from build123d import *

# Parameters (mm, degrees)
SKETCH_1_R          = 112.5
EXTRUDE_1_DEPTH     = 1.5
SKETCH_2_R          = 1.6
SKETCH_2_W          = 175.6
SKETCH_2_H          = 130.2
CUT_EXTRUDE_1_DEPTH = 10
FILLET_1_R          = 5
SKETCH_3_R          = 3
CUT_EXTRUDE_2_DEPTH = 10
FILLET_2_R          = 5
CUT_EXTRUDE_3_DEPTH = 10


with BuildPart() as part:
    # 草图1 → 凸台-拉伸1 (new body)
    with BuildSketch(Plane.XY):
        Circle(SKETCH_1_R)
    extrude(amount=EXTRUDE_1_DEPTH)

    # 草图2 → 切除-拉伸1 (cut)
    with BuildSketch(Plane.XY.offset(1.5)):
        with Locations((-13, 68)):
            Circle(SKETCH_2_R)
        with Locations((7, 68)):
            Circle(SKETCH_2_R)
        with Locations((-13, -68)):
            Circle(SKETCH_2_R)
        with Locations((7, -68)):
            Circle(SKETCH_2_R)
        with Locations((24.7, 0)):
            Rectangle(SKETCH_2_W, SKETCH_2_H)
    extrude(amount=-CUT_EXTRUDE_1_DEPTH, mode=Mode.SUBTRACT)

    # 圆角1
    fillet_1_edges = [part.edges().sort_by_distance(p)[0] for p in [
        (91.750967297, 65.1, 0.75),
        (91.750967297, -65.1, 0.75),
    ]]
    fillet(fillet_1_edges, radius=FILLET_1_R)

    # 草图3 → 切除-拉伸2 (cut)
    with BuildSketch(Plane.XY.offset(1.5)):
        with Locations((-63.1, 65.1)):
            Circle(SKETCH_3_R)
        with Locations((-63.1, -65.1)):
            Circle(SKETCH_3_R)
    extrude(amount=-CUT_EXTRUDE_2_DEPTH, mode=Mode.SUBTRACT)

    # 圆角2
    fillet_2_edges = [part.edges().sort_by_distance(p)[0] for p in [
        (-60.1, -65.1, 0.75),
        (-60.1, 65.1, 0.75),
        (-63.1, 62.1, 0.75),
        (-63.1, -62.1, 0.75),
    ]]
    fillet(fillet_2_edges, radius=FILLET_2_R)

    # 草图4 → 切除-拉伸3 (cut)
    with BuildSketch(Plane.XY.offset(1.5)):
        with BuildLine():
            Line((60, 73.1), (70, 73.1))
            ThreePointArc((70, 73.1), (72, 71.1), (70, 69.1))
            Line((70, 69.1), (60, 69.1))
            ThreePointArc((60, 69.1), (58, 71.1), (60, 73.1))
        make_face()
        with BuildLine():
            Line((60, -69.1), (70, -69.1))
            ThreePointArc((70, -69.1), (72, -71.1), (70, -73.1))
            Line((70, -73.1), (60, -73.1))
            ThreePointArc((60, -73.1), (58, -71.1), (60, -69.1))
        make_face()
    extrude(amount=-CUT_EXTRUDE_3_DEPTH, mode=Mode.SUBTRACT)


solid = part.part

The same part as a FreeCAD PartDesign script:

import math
import FreeCAD as App
import Part
import Sketcher
from FreeCAD import Vector
Q = App.Units.Quantity


def edges_at(feature, points):
    """Names of the edges that pass closest to the given points."""
    edges = feature.Shape.Edges
    near = lambda p: min(range(len(edges)), key=lambda i: edges[i].distToShape(Part.Vertex(*p))[0])
    return sorted({f"Edge{near(p) + 1}" for p in points})


def add_polygon(sketch, points):
    """Adds a closed chain of lines whose ends are joined by coincident constraints."""
    first, n = sketch.GeometryCount, len(points)
    for a, b in zip(points, points[1:] + points[:1]):
        sketch.addGeometry(Part.LineSegment(App.Vector(*a, 0), App.Vector(*b, 0)), False)
    for i in range(n):
        sketch.addConstraint(Sketcher.Constraint("Coincident", first + i, 2, first + (i + 1) % n, 1))

doc = App.newDocument("Part")
body = doc.addObject("PartDesign::Body", "Body")

# Sketch on XY plane
sketch1 = body.newObject("Sketcher::SketchObject", "Sketch")
sketch1.AttachmentSupport = (doc.getObject("XY_Plane"), [""])
sketch1.MapMode = "FlatFace"
sketch1.addGeometry(Part.Circle(Vector(0, 0, 0), Vector(0, 0, 1), 112.5), False)
sketch1.addConstraint(Sketcher.Constraint("Coincident", 0, 3, -1, 1))
sketch1.addConstraint(Sketcher.Constraint("Diameter", 0, Q("225 mm")))
pad1 = body.newObject("PartDesign::Pad", "Pad")
pad1.Profile = sketch1
pad1.Length = 1.5

# Sketch on XY plane
sketch2 = body.newObject("Sketcher::SketchObject", "Sketch001")
sketch2.AttachmentSupport = (doc.getObject("XY_Plane"), [""])
sketch2.MapMode = "FlatFace"
sketch2.AttachmentOffset = App.Placement(Vector(0, 0, 1.5), App.Rotation())
sketch2.addGeometry(Part.Circle(Vector(-13, 68, 0), Vector(0, 0, 1), 1.6), False)  # 0
sketch2.addGeometry(Part.Circle(Vector(7, 68, 0), Vector(0, 0, 1), 1.6), False)  # 1
sketch2.addGeometry(Part.Circle(Vector(-13, -68, 0), Vector(0, 0, 1), 1.6), False)  # 2
sketch2.addGeometry(Part.Circle(Vector(7, -68, 0), Vector(0, 0, 1), 1.6), False)  # 3
add_polygon(sketch2, [(-63.1, 65.1), (-63.1, -65.1), (112.5, -65.1), (112.5, 65.1)])  # lines 4-7
sketch2.addConstraint(Sketcher.Constraint("Vertical", 4))
sketch2.addConstraint(Sketcher.Constraint("Horizontal", 5))
sketch2.addConstraint(Sketcher.Constraint("Vertical", 6))
sketch2.addConstraint(Sketcher.Constraint("Horizontal", 7))
sketch2.addConstraint(Sketcher.Constraint("Equal", 0, 1))
sketch2.addConstraint(Sketcher.Constraint("Equal", 1, 2))
sketch2.addConstraint(Sketcher.Constraint("Equal", 2, 3))
sketch2.addConstraint(Sketcher.Constraint("Symmetric", 0, 3, 2, 3, -1))
sketch2.addConstraint(Sketcher.Constraint("Symmetric", 1, 3, 3, 3, -1))
sketch2.addConstraint(Sketcher.Constraint("Horizontal", 0, 3, 1, 3))
sketch2.addConstraint(Sketcher.Constraint("Diameter", 0, Q("3.2 mm")))
sketch2.addConstraint(Sketcher.Constraint("DistanceX", 5, 1, 5, 2, Q("175.6 mm")))
sketch2.addConstraint(Sketcher.Constraint("DistanceY", 4, 2, 4, 1, Q("130.2 mm")))
sketch2.addConstraint(Sketcher.Constraint("DistanceX", 0, 3, -1, 1, Q("13 mm")))
sketch2.addConstraint(Sketcher.Constraint("DistanceY", -1, 1, 0, 3, Q("68 mm")))
sketch2.addConstraint(Sketcher.Constraint("DistanceX", -1, 1, 1, 3, Q("7 mm")))
sketch2.addConstraint(Sketcher.Constraint("DistanceX", 4, 2, -1, 1, Q("63.1 mm")))
sketch2.addConstraint(Sketcher.Constraint("DistanceY", 4, 2, -1, 1, Q("65.1 mm")))
pocket1 = body.newObject("PartDesign::Pocket", "Pocket")
pocket1.Profile = sketch2
pocket1.Length = 10
doc.recompute()

fillet = body.newObject("PartDesign::Fillet", "Fillet")
fillet.Base = (pocket1, edges_at(pocket1, [(91.751, 65.1, 0.75), (91.751, -65.1, 0.75)]))
fillet.Radius = 5

# Sketch on XY plane
sketch3 = body.newObject("Sketcher::SketchObject", "Sketch002")
sketch3.AttachmentSupport = (doc.getObject("XY_Plane"), [""])
sketch3.MapMode = "FlatFace"
sketch3.AttachmentOffset = App.Placement(Vector(0, 0, 1.5), App.Rotation())
sketch3.addGeometry(Part.Circle(Vector(-63.1, 65.1, 0), Vector(0, 0, 1), 3), False)
sketch3.addGeometry(Part.Circle(Vector(-63.1, -65.1, 0), Vector(0, 0, 1), 3), False)
sketch3.addConstraint(Sketcher.Constraint("Equal", 0, 1))
sketch3.addConstraint(Sketcher.Constraint("Symmetric", 0, 3, 1, 3, -1))
sketch3.addConstraint(Sketcher.Constraint("Diameter", 0, Q("6 mm")))
sketch3.addConstraint(Sketcher.Constraint("DistanceX", 0, 3, -1, 1, Q("63.1 mm")))
sketch3.addConstraint(Sketcher.Constraint("DistanceY", -1, 1, 0, 3, Q("65.1 mm")))
pocket2 = body.newObject("PartDesign::Pocket", "Pocket001")
pocket2.Profile = sketch3
pocket2.Length = 10
doc.recompute()

fillet2 = body.newObject("PartDesign::Fillet", "Fillet001")
fillet2.Base = (pocket2, edges_at(pocket2, [
    (-60.1, -65.1, 0.75),
    (-60.1, 65.1, 0.75),
    (-63.1, 62.1, 0.75),
    (-63.1, -62.1, 0.75),
]))
fillet2.Radius = 5

# Sketch on XY plane
sketch4 = body.newObject("Sketcher::SketchObject", "Sketch003")
sketch4.AttachmentSupport = (doc.getObject("XY_Plane"), [""])
sketch4.MapMode = "FlatFace"
sketch4.AttachmentOffset = App.Placement(Vector(0, 0, 1.5), App.Rotation())
sketch4.addGeometry(Part.LineSegment(Vector(70, 73.1, 0), Vector(60, 73.1, 0)), False)
sketch4.addGeometry(Part.ArcOfCircle(Part.Circle(Vector(60, 71.1, 0), Vector(0, 0, 1), 2), math.radians(90), math.radians(270)), False)
sketch4.addGeometry(Part.LineSegment(Vector(60, 69.1, 0), Vector(70, 69.1, 0)), False)
sketch4.addGeometry(Part.ArcOfCircle(Part.Circle(Vector(70, 71.1, 0), Vector(0, 0, 1), 2), math.radians(-90), math.radians(90)), False)
sketch4.addGeometry(Part.LineSegment(Vector(70, -69.1, 0), Vector(60, -69.1, 0)), False)
sketch4.addGeometry(Part.ArcOfCircle(Part.Circle(Vector(60, -71.1, 0), Vector(0, 0, 1), 2), math.radians(90), math.radians(270)), False)
sketch4.addGeometry(Part.LineSegment(Vector(60, -73.1, 0), Vector(70, -73.1, 0)), False)
sketch4.addGeometry(Part.ArcOfCircle(Part.Circle(Vector(70, -71.1, 0), Vector(0, 0, 1), 2), math.radians(-90), math.radians(90)), False)
sketch4.addConstraint(Sketcher.Constraint("Tangent", 0, 2, 1, 1))
sketch4.addConstraint(Sketcher.Constraint("Tangent", 1, 2, 2, 1))
sketch4.addConstraint(Sketcher.Constraint("Tangent", 2, 2, 3, 1))
sketch4.addConstraint(Sketcher.Constraint("Tangent", 3, 2, 0, 1))
sketch4.addConstraint(Sketcher.Constraint("Tangent", 4, 2, 5, 1))
sketch4.addConstraint(Sketcher.Constraint("Tangent", 5, 2, 6, 1))
sketch4.addConstraint(Sketcher.Constraint("Tangent", 6, 2, 7, 1))
sketch4.addConstraint(Sketcher.Constraint("Tangent", 7, 2, 4, 1))
sketch4.addConstraint(Sketcher.Constraint("Horizontal", 0))
sketch4.addConstraint(Sketcher.Constraint("Horizontal", 2))
sketch4.addConstraint(Sketcher.Constraint("Horizontal", 4))
sketch4.addConstraint(Sketcher.Constraint("Horizontal", 6))
sketch4.addConstraint(Sketcher.Constraint("Equal", 3, 5))
sketch4.addConstraint(Sketcher.Constraint("Symmetric", 1, 3, 5, 3, -1))
sketch4.addConstraint(Sketcher.Constraint("Vertical", 3, 3, 7, 3))
sketch4.addConstraint(Sketcher.Constraint("Radius", 1, Q("2 mm")))
sketch4.addConstraint(Sketcher.Constraint("DistanceX", 0, 2, 0, 1, Q("10 mm")))
sketch4.addConstraint(Sketcher.Constraint("DistanceX", -1, 1, 1, 3, Q("60 mm")))
sketch4.addConstraint(Sketcher.Constraint("DistanceY", -1, 1, 1, 3, Q("71.1 mm")))
pocket3 = body.newObject("PartDesign::Pocket", "Pocket002")
pocket3.Profile = sketch4
pocket3.Length = 10

doc.recompute()
